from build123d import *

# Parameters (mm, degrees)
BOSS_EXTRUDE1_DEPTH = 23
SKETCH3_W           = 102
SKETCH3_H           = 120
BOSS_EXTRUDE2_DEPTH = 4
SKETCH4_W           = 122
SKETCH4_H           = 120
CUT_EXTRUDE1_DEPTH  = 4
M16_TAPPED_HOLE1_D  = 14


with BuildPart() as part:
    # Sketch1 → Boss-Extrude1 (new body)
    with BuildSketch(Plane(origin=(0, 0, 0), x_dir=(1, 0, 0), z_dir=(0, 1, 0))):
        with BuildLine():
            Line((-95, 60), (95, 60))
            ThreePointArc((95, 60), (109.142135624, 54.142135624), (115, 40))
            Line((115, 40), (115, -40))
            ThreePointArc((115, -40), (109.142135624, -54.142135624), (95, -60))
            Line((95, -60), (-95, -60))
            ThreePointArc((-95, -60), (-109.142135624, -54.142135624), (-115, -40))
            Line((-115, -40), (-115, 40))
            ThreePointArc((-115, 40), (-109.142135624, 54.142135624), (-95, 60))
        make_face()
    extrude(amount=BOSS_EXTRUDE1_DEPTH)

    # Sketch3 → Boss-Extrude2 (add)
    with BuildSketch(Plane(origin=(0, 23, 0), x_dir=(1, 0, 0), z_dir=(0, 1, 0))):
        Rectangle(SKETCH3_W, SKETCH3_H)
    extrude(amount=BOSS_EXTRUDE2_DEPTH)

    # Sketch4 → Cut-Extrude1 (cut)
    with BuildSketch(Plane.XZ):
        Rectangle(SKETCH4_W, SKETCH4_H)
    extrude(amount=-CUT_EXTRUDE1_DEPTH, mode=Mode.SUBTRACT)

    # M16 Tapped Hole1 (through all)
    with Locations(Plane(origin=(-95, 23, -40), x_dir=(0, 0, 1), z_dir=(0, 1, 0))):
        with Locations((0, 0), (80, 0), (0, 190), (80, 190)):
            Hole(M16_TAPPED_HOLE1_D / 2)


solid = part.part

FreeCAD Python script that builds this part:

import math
import FreeCAD as App
import Part
import Sketcher
Q = App.Units.Quantity

doc = App.newDocument("Part")
params = doc.addObject("Spreadsheet::Sheet", "Params")
for row, (alias, value) in enumerate([
    ("sketch1_radius", "20 mm"),
    ("sketch1_width", "190 mm"),
    ("sketch1_height", "80 mm"),
    ("pad1_length", "23 mm"),
    ("sketch2_width", "102 mm"),
    ("sketch2_height", "120 mm"),
    ("pad2_length", "4 mm"),
    ("sketch3_width", "122 mm"),
    ("sketch3_height", "120 mm"),
    ("pocket1_length", "4 mm"),
    ("sketch4_diameter", "14 mm"),
    ("hole_diameter", "14 mm"),
], start=1):
    params.set(f"A{row}", alias)
    params.set(f"B{row}", "=" + value)
    params.setAlias(f"B{row}", alias)

body = doc.addObject("PartDesign::Body", "Body")

# Sketch on XZ plane
sketch1 = doc.addObject("Sketcher::SketchObject", "Sketch")
body.addObject(sketch1)
sketch1.AttachmentSupport = (doc.XZ_Plane, [""])
sketch1.MapMode = "FlatFace"
sketch1.addGeometry([
    Part.LineSegment(App.Vector(95, -60, 0), App.Vector(-95, -60, 0)),  # 0
    Part.ArcOfCircle(Part.Circle(App.Vector(-95, -40, 0), App.Vector(0, 0, 1), 20), math.radians(180), math.radians(270)),  # 1
    Part.LineSegment(App.Vector(-115, -40, 0), App.Vector(-115, 40, 0)),  # 2
    Part.ArcOfCircle(Part.Circle(App.Vector(-95, 40, 0), App.Vector(0, 0, 1), 20), math.radians(90), math.radians(180)),  # 3
    Part.LineSegment(App.Vector(-95, 60, 0), App.Vector(95, 60, 0)),  # 4
    Part.ArcOfCircle(Part.Circle(App.Vector(95, 40, 0), App.Vector(0, 0, 1), 20), math.radians(0), math.radians(90)),  # 5
    Part.LineSegment(App.Vector(115, 40, 0), App.Vector(115, -40, 0)),  # 6
    Part.ArcOfCircle(Part.Circle(App.Vector(95, -40, 0), App.Vector(0, 0, 1), 20), math.radians(-90), math.radians(0)),  # 7
], False)
sketch1.addConstraint([
    Sketcher.Constraint("Tangent", 0, 2, 1, 2),
    Sketcher.Constraint("Tangent", 1, 1, 2, 1),
    Sketcher.Constraint("Tangent", 2, 2, 3, 2),
    Sketcher.Constraint("Tangent", 3, 1, 4, 1),
    Sketcher.Constraint("Tangent", 4, 2, 5, 2),
    Sketcher.Constraint("Tangent", 5, 1, 6, 1),
    Sketcher.Constraint("Tangent", 6, 2, 7, 2),
    Sketcher.Constraint("Tangent", 7, 1, 0, 1),
    Sketcher.Constraint("Horizontal", 0),
    Sketcher.Constraint("Vertical", 2),
    Sketcher.Constraint("Horizontal", 4),
    Sketcher.Constraint("Vertical", 6),
    Sketcher.Constraint("Equal", 1, 3),
    Sketcher.Constraint("Equal", 3, 5),
    Sketcher.Constraint("Equal", 5, 7),
    Sketcher.Constraint("Symmetric", 1, 3, 5, 3, -1, 1),
    Sketcher.Constraint("Radius", 1, Q("20 mm")),
    Sketcher.Constraint("DistanceX", 0, 2, 0, 1, Q("190 mm")),
    Sketcher.Constraint("DistanceY", 2, 1, 2, 2, Q("80 mm")),
])
sketch1.setExpression("Constraints[16]", "Params.sketch1_radius")
sketch1.setExpression("Constraints[17]", "Params.sketch1_width")
sketch1.setExpression("Constraints[18]", "Params.sketch1_height")
pad1 = doc.addObject("PartDesign::Pad", "Pad")
body.addObject(pad1)
pad1.Profile = sketch1
pad1.setExpression("Length", "Params.pad1_length")
pad1.Reversed = True

# Sketch on XZ plane
sketch2 = doc.addObject("Sketcher::SketchObject", "Sketch001")
body.addObject(sketch2)
sketch2.AttachmentSupport = (doc.XZ_Plane, [""])
sketch2.MapMode = "FlatFace"
sketch2.AttachmentOffset = App.Placement(App.Vector(0, 0, -23), App.Rotation())
sketch2.addGeometry([
    Part.LineSegment(App.Vector(-51, -60, 0), App.Vector(-51, 60, 0)),
    Part.LineSegment(App.Vector(-51, 60, 0), App.Vector(51, 60, 0)),
    Part.LineSegment(App.Vector(51, 60, 0), App.Vector(51, -60, 0)),
    Part.LineSegment(App.Vector(51, -60, 0), App.Vector(-51, -60, 0)),
], False)
sketch2.addConstraint([
    Sketcher.Constraint("Coincident", 0, 2, 1, 1),
    Sketcher.Constraint("Coincident", 1, 2, 2, 1),
    Sketcher.Constraint("Coincident", 2, 2, 3, 1),
    Sketcher.Constraint("Coincident", 3, 2, 0, 1),
    Sketcher.Constraint("Vertical", 0),
    Sketcher.Constraint("Horizontal", 1),
    Sketcher.Constraint("Vertical", 2),
    Sketcher.Constraint("Horizontal", 3),
    Sketcher.Constraint("Symmetric", 0, 2, 2, 2, -1, 1),
    Sketcher.Constraint("DistanceX", 1, 1, 1, 2, Q("102 mm")),
    Sketcher.Constraint("DistanceY", 0, 1, 0, 2, Q("120 mm")),
])
sketch2.setExpression("Constraints[9]", "Params.sketch2_width")
sketch2.setExpression("Constraints[10]", "Params.sketch2_height")
pad2 = doc.addObject("PartDesign::Pad", "Pad001")
body.addObject(pad2)
pad2.Profile = sketch2
pad2.setExpression("Length", "Params.pad2_length")
pad2.Reversed = True

# Sketch on XZ plane
sketch3 = doc.addObject("Sketcher::SketchObject", "Sketch002")
body.addObject(sketch3)
sketch3.AttachmentSupport = (doc.XZ_Plane, [""])
sketch3.MapMode = "FlatFace"
sketch3.addGeometry([
    Part.LineSegment(App.Vector(-61, 60, 0), App.Vector(-61, -60, 0)),
    Part.LineSegment(App.Vector(-61, -60, 0), App.Vector(61, -60, 0)),
    Part.LineSegment(App.Vector(61, -60, 0), App.Vector(61, 60, 0)),
    Part.LineSegment(App.Vector(61, 60, 0), App.Vector(-61, 60, 0)),
], False)
sketch3.addConstraint([
    Sketcher.Constraint("Coincident", 0, 2, 1, 1),
    Sketcher.Constraint("Coincident", 1, 2, 2, 1),
    Sketcher.Constraint("Coincident", 2, 2, 3, 1),
    Sketcher.Constraint("Coincident", 3, 2, 0, 1),
    Sketcher.Constraint("Vertical", 0),
    Sketcher.Constraint("Horizontal", 1),
    Sketcher.Constraint("Vertical", 2),
    Sketcher.Constraint("Horizontal", 3),
    Sketcher.Constraint("Symmetric", 0, 2, 2, 2, -1, 1),
    Sketcher.Constraint("DistanceX", 1, 1, 1, 2, Q("122 mm")),
    Sketcher.Constraint("DistanceY", 0, 2, 0, 1, Q("120 mm")),
])
sketch3.setExpression("Constraints[9]", "Params.sketch3_width")
sketch3.setExpression("Constraints[10]", "Params.sketch3_height")
pocket1 = doc.addObject("PartDesign::Pocket", "Pocket")
body.addObject(pocket1)
pocket1.Profile = sketch3
pocket1.setExpression("Length", "Params.pocket1_length")

# Sketch on XZ plane
sketch4 = doc.addObject("Sketcher::SketchObject", "Sketch003")
body.addObject(sketch4)
sketch4.AttachmentSupport = (doc.XZ_Plane, [""])
sketch4.MapMode = "FlatFace"
sketch4.AttachmentOffset = App.Placement(App.Vector(0, 0, -23), App.Rotation())
sketch4.addGeometry([
    Part.Circle(App.Vector(-95, -40, 0), App.Vector(0, 0, 1), 7),
    Part.Circle(App.Vector(-95, 40, 0), App.Vector(0, 0, 1), 7),
    Part.Circle(App.Vector(95, -40, 0), App.Vector(0, 0, 1), 7),
    Part.Circle(App.Vector(95, 40, 0), App.Vector(0, 0, 1), 7),
], False)
sketch4.addConstraint([
    Sketcher.Constraint("Equal", 0, 1),
    Sketcher.Constraint("Equal", 1, 2),
    Sketcher.Constraint("Equal", 2, 3),
    Sketcher.Constraint("Symmetric", 1, 3, 2, 3, -1, 1),
    Sketcher.Constraint("Symmetric", 0, 3, 3, 3, -1, 1),
    Sketcher.Constraint("Symmetric", 0, 3, 2, 3, -2),
    Sketcher.Constraint("Diameter", 0, Q("14 mm")),
    Sketcher.Constraint("DistanceX", 0, 3, -1, 1, Q("95 mm")),
    Sketcher.Constraint("DistanceY", 0, 3, -1, 1, Q("40 mm")),
])
sketch4.setExpression("Constraints[6]", "Params.sketch4_diameter")
doc.recompute()
hole = doc.addObject("PartDesign::Hole", "Hole")
body.addObject(hole)
hole.Profile = sketch4
hole.ThreadType = "None"
hole.setExpression("Diameter", "Params.hole_diameter")
hole.DepthType = "ThroughAll"
hole.Reversed = True

doc.recompute()
